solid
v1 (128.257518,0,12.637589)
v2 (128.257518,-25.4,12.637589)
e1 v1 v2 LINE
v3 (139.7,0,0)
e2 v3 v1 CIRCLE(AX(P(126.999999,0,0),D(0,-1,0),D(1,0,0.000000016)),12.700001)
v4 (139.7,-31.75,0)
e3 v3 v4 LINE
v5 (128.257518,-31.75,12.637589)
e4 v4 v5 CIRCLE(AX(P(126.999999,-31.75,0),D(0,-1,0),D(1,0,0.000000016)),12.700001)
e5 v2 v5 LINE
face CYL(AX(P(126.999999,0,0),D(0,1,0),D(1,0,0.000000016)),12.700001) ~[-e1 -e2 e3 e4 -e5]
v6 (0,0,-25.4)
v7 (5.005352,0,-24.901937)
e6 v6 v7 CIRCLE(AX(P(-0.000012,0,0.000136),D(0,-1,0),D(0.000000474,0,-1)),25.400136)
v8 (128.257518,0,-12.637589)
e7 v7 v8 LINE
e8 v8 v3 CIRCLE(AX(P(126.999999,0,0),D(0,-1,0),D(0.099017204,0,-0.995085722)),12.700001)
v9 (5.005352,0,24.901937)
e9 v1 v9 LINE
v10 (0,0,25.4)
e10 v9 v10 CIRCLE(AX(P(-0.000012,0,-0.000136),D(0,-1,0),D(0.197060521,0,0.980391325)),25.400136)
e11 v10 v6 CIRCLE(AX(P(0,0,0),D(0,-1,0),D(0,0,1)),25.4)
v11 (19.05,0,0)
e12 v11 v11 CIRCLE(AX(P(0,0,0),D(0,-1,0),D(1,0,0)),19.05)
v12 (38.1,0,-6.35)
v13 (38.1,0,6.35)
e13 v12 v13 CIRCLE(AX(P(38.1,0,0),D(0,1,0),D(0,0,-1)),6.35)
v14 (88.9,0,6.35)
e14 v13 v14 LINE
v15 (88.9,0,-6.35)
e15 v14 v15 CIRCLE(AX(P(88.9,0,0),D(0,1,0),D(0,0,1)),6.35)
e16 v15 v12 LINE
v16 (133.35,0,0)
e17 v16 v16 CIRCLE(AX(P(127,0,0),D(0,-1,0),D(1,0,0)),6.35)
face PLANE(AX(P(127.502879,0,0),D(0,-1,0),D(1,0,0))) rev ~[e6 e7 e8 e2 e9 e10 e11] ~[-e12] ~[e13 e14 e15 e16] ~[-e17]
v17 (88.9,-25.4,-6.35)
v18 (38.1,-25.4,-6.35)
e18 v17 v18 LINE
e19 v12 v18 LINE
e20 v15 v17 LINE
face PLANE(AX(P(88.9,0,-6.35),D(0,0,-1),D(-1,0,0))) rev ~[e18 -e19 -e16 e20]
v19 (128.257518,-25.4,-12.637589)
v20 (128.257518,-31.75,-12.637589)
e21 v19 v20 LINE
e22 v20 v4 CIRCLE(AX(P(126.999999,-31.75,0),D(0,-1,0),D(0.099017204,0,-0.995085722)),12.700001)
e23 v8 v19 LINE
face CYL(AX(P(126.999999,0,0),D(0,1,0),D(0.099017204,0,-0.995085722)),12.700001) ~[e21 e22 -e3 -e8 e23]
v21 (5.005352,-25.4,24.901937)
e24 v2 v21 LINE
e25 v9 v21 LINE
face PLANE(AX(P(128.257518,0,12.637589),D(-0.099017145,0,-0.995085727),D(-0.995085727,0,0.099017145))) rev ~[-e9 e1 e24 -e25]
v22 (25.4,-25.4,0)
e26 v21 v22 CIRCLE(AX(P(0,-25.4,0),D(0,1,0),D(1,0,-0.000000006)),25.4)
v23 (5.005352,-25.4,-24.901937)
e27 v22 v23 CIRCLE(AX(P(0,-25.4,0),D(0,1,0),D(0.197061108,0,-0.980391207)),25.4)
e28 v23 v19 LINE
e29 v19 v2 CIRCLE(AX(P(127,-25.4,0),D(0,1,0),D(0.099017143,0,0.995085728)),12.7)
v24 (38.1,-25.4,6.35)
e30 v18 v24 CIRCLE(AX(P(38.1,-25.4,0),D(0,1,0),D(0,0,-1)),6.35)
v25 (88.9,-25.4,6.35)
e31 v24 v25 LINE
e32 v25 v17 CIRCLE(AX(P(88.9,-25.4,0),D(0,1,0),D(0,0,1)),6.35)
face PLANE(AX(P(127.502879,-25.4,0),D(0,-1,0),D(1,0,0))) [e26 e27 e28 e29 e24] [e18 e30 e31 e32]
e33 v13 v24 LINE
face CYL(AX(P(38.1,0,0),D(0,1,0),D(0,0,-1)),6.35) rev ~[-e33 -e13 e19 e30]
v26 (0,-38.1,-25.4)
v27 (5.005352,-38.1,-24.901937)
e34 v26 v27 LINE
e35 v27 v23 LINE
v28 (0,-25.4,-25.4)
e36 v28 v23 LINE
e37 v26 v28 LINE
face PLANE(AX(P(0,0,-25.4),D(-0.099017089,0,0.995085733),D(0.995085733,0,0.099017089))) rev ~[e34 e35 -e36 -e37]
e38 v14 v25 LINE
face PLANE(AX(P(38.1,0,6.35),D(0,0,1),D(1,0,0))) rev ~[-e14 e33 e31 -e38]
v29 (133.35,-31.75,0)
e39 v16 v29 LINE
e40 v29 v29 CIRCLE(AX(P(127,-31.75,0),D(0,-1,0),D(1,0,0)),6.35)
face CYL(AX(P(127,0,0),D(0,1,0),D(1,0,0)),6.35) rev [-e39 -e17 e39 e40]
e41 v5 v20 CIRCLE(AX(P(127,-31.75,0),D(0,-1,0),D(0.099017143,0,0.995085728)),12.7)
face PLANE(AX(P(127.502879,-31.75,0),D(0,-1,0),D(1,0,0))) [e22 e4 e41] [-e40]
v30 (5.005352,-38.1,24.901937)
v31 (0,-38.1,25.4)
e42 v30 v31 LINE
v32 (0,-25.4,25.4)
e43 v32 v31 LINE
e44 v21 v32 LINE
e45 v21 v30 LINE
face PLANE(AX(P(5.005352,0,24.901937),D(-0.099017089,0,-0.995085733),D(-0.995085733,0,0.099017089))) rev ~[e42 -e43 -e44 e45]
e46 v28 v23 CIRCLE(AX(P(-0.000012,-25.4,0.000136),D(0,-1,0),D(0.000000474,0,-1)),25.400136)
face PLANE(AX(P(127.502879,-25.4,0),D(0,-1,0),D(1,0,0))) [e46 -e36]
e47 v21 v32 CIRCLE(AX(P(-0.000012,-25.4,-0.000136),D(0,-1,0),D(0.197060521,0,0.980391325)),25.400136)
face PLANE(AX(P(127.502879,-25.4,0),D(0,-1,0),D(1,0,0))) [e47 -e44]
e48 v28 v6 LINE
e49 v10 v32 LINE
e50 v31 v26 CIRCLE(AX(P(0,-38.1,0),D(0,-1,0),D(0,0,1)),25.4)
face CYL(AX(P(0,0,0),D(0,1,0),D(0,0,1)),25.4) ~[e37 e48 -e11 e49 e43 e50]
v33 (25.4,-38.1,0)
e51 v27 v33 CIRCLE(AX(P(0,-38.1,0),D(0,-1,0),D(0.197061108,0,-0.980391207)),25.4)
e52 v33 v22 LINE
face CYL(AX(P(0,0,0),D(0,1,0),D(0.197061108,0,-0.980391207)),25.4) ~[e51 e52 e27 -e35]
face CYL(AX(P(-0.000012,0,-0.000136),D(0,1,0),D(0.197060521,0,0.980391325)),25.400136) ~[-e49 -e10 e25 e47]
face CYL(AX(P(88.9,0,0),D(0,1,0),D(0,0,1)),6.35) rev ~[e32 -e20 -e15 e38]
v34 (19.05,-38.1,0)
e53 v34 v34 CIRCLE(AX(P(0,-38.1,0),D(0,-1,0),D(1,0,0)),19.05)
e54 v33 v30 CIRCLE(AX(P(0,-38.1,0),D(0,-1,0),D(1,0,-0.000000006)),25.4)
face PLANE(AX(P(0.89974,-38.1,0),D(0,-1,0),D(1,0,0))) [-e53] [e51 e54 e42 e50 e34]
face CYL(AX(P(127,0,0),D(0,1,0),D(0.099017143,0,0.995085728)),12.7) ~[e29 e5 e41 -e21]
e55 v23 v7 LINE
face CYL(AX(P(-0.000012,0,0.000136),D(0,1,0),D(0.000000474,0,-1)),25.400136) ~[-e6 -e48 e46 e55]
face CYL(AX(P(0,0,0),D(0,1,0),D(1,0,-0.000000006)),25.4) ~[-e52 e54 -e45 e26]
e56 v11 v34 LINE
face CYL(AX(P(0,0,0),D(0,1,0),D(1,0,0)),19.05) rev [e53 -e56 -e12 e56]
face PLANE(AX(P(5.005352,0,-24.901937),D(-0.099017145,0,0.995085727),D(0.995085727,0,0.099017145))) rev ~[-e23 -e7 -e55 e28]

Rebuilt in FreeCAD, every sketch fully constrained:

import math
import FreeCAD as App
import Part
import Sketcher

V = App.Vector
Q = App.Units.Quantity

doc = App.newDocument("Part")
body = doc.addObject("PartDesign::Body", "Body")
body.AllowCompound = True

sketch1 = body.newObject("Sketcher::SketchObject", "Sketch")
sketch1.AttachmentSupport = (doc.getObject("XZ_Plane"), [""])
sketch1.MapMode = "FlatFace"
sketch1.addGeometry([
    Part.ArcOfCircle(Part.Circle(V(0, 0, 0), V(0, 0, 1), 25), math.radians(0), math.radians(79)),
    Part.LineSegment(V(5, 25, 0), V(0, 25, 0)),
    Part.ArcOfCircle(Part.Circle(V(0, 0, 0), V(0, 0, 1), 25), math.radians(90), math.radians(270)),
    Part.LineSegment(V(0, -25, 0), V(5, -25, 0)),
    Part.ArcOfCircle(Part.Circle(V(0, 0, 0), V(0, 0, 1), 25), math.radians(-79), math.radians(0)),
    Part.Circle(V(0, 0, 0), V(0, 0, 1), 19),
], False)
sketch1.addConstraint([
    Sketcher.Constraint("Coincident", 0, 2, 1, 1),
    Sketcher.Constraint("Coincident", 1, 2, 2, 1),
    Sketcher.Constraint("Coincident", 2, 2, 3, 1),
    Sketcher.Constraint("Coincident", 3, 2, 4, 1),
    Sketcher.Constraint("Tangent", 4, 2, 0, 1),
    Sketcher.Constraint("Coincident", 0, 3, -1, 1),
    Sketcher.Constraint("Coincident", 2, 3, -1, 1),
    Sketcher.Constraint("Coincident", 5, 3, -1, 1),
    Sketcher.Constraint("Equal", 0, 2),
    Sketcher.Constraint("Equal", 2, 4),
    Sketcher.Constraint("PointOnObject", 1, 2, -2),
    Sketcher.Constraint("PointOnObject", 2, 2, -2),
    Sketcher.Constraint("PointOnObject", 4, 2, -1),
    Sketcher.Constraint("Vertical", 0, 2, 3, 2),
    Sketcher.Constraint("Radius", 0, Q("1 in")),
    Sketcher.Constraint("Diameter", 5, Q("1.5 in")),
    Sketcher.Constraint("Distance", 1, Q("5.030071 mm")),
])
pad1 = body.newObject("PartDesign::Pad", "Pad")
pad1.Profile = sketch1
pad1.Length = Q("1.5 in")

sketch2 = body.newObject("Sketcher::SketchObject", "Sketch001")
sketch2.AttachmentSupport = (doc.getObject("XZ_Plane"), [""])
sketch2.MapMode = "FlatFace"
sketch2.addGeometry([
    Part.ArcOfCircle(Part.Circle(V(0, 0, 0), V(0, 0, 1), 25), math.radians(0), math.radians(79)),
    Part.LineSegment(V(5, 25, 0), V(0, 25, 0)),
    Part.ArcOfCircle(Part.Circle(V(0, 0, 0), V(0, 0, 1), 25), math.radians(90), math.radians(270)),
    Part.LineSegment(V(0, -25, 0), V(5, -25, 0)),
    Part.ArcOfCircle(Part.Circle(V(0, 0, 0), V(0, 0, 1), 25), math.radians(-79), math.radians(0)),
    Part.Circle(V(0, 0, 0), V(0, 0, 1), 19),
    Part.ArcOfCircle(Part.Circle(V(127, 0, 0), V(0, 0, 1), 13), math.radians(-84), math.radians(0)),
    Part.ArcOfCircle(Part.Circle(V(127, 0, 0), V(0, 0, 1), 13), math.radians(0), math.radians(84)),
    Part.ArcOfCircle(Part.Circle(V(127, 0, 0), V(0, 0, 1), 13), math.radians(84), math.radians(276)),
    Part.Circle(V(127, 0, 0), V(0, 0, 1), 6),
], False)
sketch2.addConstraint([
    Sketcher.Constraint("Coincident", 0, 2, 1, 1),
    Sketcher.Constraint("Coincident", 1, 2, 2, 1),
    Sketcher.Constraint("Coincident", 2, 2, 3, 1),
    Sketcher.Constraint("Coincident", 3, 2, 4, 1),
    Sketcher.Constraint("Tangent", 4, 2, 0, 1),
    Sketcher.Constraint("Tangent", 6, 2, 7, 1),
    Sketcher.Constraint("Tangent", 7, 2, 8, 1),
    Sketcher.Constraint("Tangent", 8, 2, 6, 1),
    Sketcher.Constraint("Coincident", 0, 3, -1, 1),
    Sketcher.Constraint("Coincident", 2, 3, -1, 1),
    Sketcher.Constraint("Coincident", 5, 3, -1, 1),
    Sketcher.Constraint("Coincident", 9, 3, 6, 3),
    Sketcher.Constraint("Equal", 0, 2),
    Sketcher.Constraint("Equal", 2, 4),
    Sketcher.Constraint("Symmetric", 7, 2, 8, 2, -1),
    Sketcher.Constraint("PointOnObject", 1, 2, -2),
    Sketcher.Constraint("PointOnObject", 2, 2, -2),
    Sketcher.Constraint("PointOnObject", 4, 2, -1),
    Sketcher.Constraint("PointOnObject", 6, 2, -1),
    Sketcher.Constraint("Vertical", 0, 2, 3, 2),
    Sketcher.Constraint("Radius", 0, Q("1 in")),
    Sketcher.Constraint("Diameter", 5, Q("1.5 in")),
    Sketcher.Constraint("Diameter", 9, Q("0.5 in")),
    Sketcher.Constraint("Radius", 6, Q("0.5 in")),
    Sketcher.Constraint("DistanceX", -1, 1, 6, 3, Q("5 in")),
    Sketcher.Constraint("Distance", 1, Q("5.030071 mm")),
    Sketcher.Constraint("DistanceY", -1, 1, 7, 2, Q("12.637589 mm")),
])
pad2 = body.newObject("PartDesign::Pad", "Pad001")
pad2.Profile = sketch2
pad2.Length = Q("1.25 in")

sketch3 = body.newObject("Sketcher::SketchObject", "Sketch002")
sketch3.AttachmentSupport = (doc.getObject("XZ_Plane"), [""])
sketch3.MapMode = "FlatFace"
sketch3.addGeometry([
    Part.ArcOfCircle(Part.Circle(V(127, 0, 0), V(0, 0, 1), 13), math.radians(-84), math.radians(0)),
    Part.ArcOfCircle(Part.Circle(V(127, 0, 0), V(0, 0, 1), 13), math.radians(0), math.radians(84)),
    Part.LineSegment(V(128, 13, 0), V(5, 25, 0)),
    Part.ArcOfCircle(Part.Circle(V(0, 0, 0), V(0, 0, 1), 25), math.radians(78.63), math.radians(90)),
    Part.ArcOfCircle(Part.Circle(V(0, 0, 0), V(0, 0, 1), 25), math.radians(90), math.radians(270)),
    Part.ArcOfCircle(Part.Circle(V(0, 0, 0), V(0, 0, 1), 25), math.radians(-90), math.radians(-78.63)),
    Part.LineSegment(V(5, -25, 0), V(128, -13, 0)),
    Part.Circle(V(0, 0, 0), V(0, 0, 1), 19),
    Part.LineSegment(V(89, -6, 0), V(38, -6, 0)),
    Part.ArcOfCircle(Part.Circle(V(38, 0, 0), V(0, 0, 1), 6), math.radians(90), math.radians(270)),
    Part.LineSegment(V(38, 6, 0), V(89, 6, 0)),
    Part.ArcOfCircle(Part.Circle(V(89, 0, 0), V(0, 0, 1), 6), math.radians(-90), math.radians(90)),
    Part.Circle(V(127, 0, 0), V(0, 0, 1), 6),
], False)
sketch3.addConstraint([
    Sketcher.Constraint("Tangent", 0, 2, 1, 1),
    Sketcher.Constraint("Tangent", 1, 2, 2, 1),
    Sketcher.Constraint("Coincident", 2, 2, 3, 1),
    Sketcher.Constraint("Tangent", 3, 2, 4, 1),
    Sketcher.Constraint("Tangent", 4, 2, 5, 1),
    Sketcher.Constraint("Coincident", 5, 2, 6, 1),
    Sketcher.Constraint("Tangent", 6, 2, 0, 1),
    Sketcher.Constraint("Tangent", 8, 2, 9, 2),
    Sketcher.Constraint("Tangent", 9, 1, 10, 1),
    Sketcher.Constraint("Tangent", 10, 2, 11, 2),
    Sketcher.Constraint("Tangent", 11, 1, 8, 1),
    Sketcher.Constraint("Horizontal", 8),
    Sketcher.Constraint("Horizontal", 10),
    Sketcher.Constraint("Coincident", 4, 3, -1, 1),
    Sketcher.Constraint("Coincident", 7, 3, -1, 1),
    Sketcher.Constraint("Coincident", 12, 3, 0, 3),
    Sketcher.Constraint("Equal", 0, 1),
    Sketcher.Constraint("Equal", 3, 5),
    Sketcher.Constraint("Equal", 11, 12),
    Sketcher.Constraint("Symmetric", 1, 2, 6, 2, -1),
    Sketcher.Constraint("PointOnObject", 9, 3, -1),
    Sketcher.Constraint("PointOnObject", 0, 2, -1),
    Sketcher.Constraint("PointOnObject", 3, 2, -2),
    Sketcher.Constraint("PointOnObject", 4, 2, -2),
    Sketcher.Constraint("Radius", 4, Q("1 in")),
    Sketcher.Constraint("Diameter", 7, Q("1.5 in")),
    Sketcher.Constraint("Diameter", 12, Q("0.5 in")),
    Sketcher.Constraint("Radius", 0, Q("0.5 in")),
    Sketcher.Constraint("DistanceX", 8, 2, 8, 1, Q("2 in")),
    Sketcher.Constraint("DistanceX", -1, 1, 0, 3, Q("5 in")),
    Sketcher.Constraint("DistanceX", 11, 3, 0, 2, Q("2 in")),
    Sketcher.Constraint("Radius", 3, Q("25.400136 mm")),
    Sketcher.Constraint("DistanceY", 5, 3, 2, 2, Q("24.901801 mm")),
])
pad3 = body.newObject("PartDesign::Pad", "Pad002")
pad3.Profile = sketch3
pad3.Length = Q("1 in")

doc.recompute()
